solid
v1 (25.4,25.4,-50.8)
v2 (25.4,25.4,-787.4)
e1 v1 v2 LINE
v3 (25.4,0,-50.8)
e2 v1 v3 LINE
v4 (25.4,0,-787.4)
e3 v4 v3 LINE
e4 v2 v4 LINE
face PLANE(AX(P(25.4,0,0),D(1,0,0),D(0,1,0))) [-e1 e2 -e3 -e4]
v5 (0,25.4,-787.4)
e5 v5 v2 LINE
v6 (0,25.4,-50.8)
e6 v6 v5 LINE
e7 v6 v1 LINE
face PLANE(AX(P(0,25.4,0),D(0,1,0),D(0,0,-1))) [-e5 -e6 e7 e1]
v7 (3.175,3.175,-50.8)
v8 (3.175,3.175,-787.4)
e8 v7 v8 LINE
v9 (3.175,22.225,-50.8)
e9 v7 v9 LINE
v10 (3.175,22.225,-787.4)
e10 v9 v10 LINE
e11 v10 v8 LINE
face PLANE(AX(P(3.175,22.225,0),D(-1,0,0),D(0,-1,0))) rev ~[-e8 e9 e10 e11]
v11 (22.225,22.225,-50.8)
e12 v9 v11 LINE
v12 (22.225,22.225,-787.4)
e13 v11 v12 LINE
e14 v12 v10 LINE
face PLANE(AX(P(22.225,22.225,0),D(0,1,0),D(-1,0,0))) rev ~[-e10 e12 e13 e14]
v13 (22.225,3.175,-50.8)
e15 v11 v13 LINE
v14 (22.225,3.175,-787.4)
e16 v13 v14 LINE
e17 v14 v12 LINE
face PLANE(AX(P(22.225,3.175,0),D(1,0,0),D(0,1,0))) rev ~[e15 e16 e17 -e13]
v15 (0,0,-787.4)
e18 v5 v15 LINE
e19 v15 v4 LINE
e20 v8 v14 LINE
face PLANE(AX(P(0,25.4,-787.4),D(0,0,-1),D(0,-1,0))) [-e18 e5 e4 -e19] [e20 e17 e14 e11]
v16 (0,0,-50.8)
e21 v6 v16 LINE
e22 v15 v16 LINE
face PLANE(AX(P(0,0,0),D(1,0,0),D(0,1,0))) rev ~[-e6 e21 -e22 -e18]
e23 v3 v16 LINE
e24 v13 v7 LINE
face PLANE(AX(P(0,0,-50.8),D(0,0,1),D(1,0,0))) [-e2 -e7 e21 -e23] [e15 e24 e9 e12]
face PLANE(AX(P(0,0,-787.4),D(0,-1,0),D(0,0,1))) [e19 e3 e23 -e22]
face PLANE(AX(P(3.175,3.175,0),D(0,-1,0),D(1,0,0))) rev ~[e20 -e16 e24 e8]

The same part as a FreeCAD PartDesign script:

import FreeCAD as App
import Part
import Sketcher
Q = App.Units.Quantity

doc = App.newDocument("Part")
body = doc.addObject("PartDesign::Body", "Body")

# Sketch on YZ plane
sketch1 = body.newObject("Sketcher::SketchObject", "Sketch")
sketch1.AttachmentSupport = (doc.getObject("YZ_Plane"), [""])
sketch1.MapMode = "FlatFace"
sketch1.addGeometry([
    Part.LineSegment(App.Vector(25.4, 0, 0), App.Vector(0, 0, 0)),
    Part.LineSegment(App.Vector(0, 0, 0), App.Vector(0, -787.4, 0)),
    Part.LineSegment(App.Vector(0, -787.4, 0), App.Vector(25.4, -787.4, 0)),
    Part.LineSegment(App.Vector(25.4, -787.4, 0), App.Vector(25.4, 0, 0)),
], False)
sketch1.addConstraint([
    Sketcher.Constraint("Coincident", 0, 2, 1, 1),
    Sketcher.Constraint("Coincident", 1, 2, 2, 1),
    Sketcher.Constraint("Coincident", 2, 2, 3, 1),
    Sketcher.Constraint("Coincident", 3, 2, 0, 1),
    Sketcher.Constraint("Horizontal", 0),
    Sketcher.Constraint("Vertical", 1),
    Sketcher.Constraint("Horizontal", 2),
    Sketcher.Constraint("Vertical", 3),
    Sketcher.Constraint("Coincident", 0, 2, -1, 1),
    Sketcher.Constraint("DistanceX", 0, 2, 0, 1, Q("1 in")),
    Sketcher.Constraint("DistanceY", 1, 2, 1, 1, Q("31 in")),
])
pad1 = body.newObject("PartDesign::Pad", "Pad")
pad1.Profile = sketch1
pad1.Length = Q("1 in")

# Sketch on XY plane
sketch2 = body.newObject("Sketcher::SketchObject", "Sketch001")
sketch2.AttachmentSupport = (doc.getObject("XY_Plane"), [""])
sketch2.MapMode = "FlatFace"
sketch2.addGeometry([
    Part.LineSegment(App.Vector(3.175, 22.225, 0), App.Vector(3.175, 3.175, 0)),
    Part.LineSegment(App.Vector(3.175, 3.175, 0), App.Vector(22.225, 3.175, 0)),
    Part.LineSegment(App.Vector(22.225, 3.175, 0), App.Vector(22.225, 22.225, 0)),
    Part.LineSegment(App.Vector(22.225, 22.225, 0), App.Vector(3.175, 22.225, 0)),
], False)
sketch2.addConstraint([
    Sketcher.Constraint("Coincident", 0, 2, 1, 1),
    Sketcher.Constraint("Coincident", 1, 2, 2, 1),
    Sketcher.Constraint("Coincident", 2, 2, 3, 1),
    Sketcher.Constraint("Coincident", 3, 2, 0, 1),
    Sketcher.Constraint("Vertical", 0),
    Sketcher.Constraint("Horizontal", 1),
    Sketcher.Constraint("Vertical", 2),
    Sketcher.Constraint("Horizontal", 3),
    Sketcher.Constraint("Equal", 3, 0),
    Sketcher.Constraint("DistanceX", 1, 1, 1, 2, Q("0.75 in")),
    Sketcher.Constraint("DistanceX", -1, 1, 0, 2, Q("0.125 in")),
    Sketcher.Constraint("DistanceY", -1, 1, 0, 2, Q("0.125 in")),
])
pocket1 = body.newObject("PartDesign::Pocket", "Pocket")
pocket1.Profile = sketch2
pocket1.Length = Q("31 in")

# Sketch on XY plane
sketch3 = body.newObject("Sketcher::SketchObject", "Sketch002")
sketch3.AttachmentSupport = (doc.getObject("XY_Plane"), [""])
sketch3.MapMode = "FlatFace"
sketch3.addGeometry([
    Part.LineSegment(App.Vector(65.9681, 33.3766, 0), App.Vector(-24.3318, 33.3766, 0)),
    Part.LineSegment(App.Vector(-24.3318, 33.3766, 0), App.Vector(-24.3318, -31.7467, 0)),
    Part.LineSegment(App.Vector(-24.3318, -31.7467, 0), App.Vector(65.9681, -31.7467, 0)),
    Part.LineSegment(App.Vector(65.9681, -31.7467, 0), App.Vector(65.9681, 33.3766, 0)),
], False)
sketch3.addConstraint([
    Sketcher.Constraint("Coincident", 0, 2, 1, 1),
    Sketcher.Constraint("Coincident", 1, 2, 2, 1),
    Sketcher.Constraint("Coincident", 2, 2, 3, 1),
    Sketcher.Constraint("Coincident", 3, 2, 0, 1),
    Sketcher.Constraint("Horizontal", 0),
    Sketcher.Constraint("Vertical", 1),
    Sketcher.Constraint("Horizontal", 2),
    Sketcher.Constraint("Vertical", 3),
    Sketcher.Constraint("DistanceY", 1, 2, 1, 1, Q("2.5639 in")),
    Sketcher.Constraint("DistanceX", 0, 2, 0, 1, Q("90.3 mm")),
    Sketcher.Constraint("DistanceX", 0, 2, -1, 1, Q("24.3318 mm")),
    Sketcher.Constraint("DistanceY", -1, 1, 0, 2, Q("33.3766 mm")),
])
pocket2 = body.newObject("PartDesign::Pocket", "Pocket001")
pocket2.Profile = sketch3
pocket2.Length = Q("2 in")

doc.recompute()
